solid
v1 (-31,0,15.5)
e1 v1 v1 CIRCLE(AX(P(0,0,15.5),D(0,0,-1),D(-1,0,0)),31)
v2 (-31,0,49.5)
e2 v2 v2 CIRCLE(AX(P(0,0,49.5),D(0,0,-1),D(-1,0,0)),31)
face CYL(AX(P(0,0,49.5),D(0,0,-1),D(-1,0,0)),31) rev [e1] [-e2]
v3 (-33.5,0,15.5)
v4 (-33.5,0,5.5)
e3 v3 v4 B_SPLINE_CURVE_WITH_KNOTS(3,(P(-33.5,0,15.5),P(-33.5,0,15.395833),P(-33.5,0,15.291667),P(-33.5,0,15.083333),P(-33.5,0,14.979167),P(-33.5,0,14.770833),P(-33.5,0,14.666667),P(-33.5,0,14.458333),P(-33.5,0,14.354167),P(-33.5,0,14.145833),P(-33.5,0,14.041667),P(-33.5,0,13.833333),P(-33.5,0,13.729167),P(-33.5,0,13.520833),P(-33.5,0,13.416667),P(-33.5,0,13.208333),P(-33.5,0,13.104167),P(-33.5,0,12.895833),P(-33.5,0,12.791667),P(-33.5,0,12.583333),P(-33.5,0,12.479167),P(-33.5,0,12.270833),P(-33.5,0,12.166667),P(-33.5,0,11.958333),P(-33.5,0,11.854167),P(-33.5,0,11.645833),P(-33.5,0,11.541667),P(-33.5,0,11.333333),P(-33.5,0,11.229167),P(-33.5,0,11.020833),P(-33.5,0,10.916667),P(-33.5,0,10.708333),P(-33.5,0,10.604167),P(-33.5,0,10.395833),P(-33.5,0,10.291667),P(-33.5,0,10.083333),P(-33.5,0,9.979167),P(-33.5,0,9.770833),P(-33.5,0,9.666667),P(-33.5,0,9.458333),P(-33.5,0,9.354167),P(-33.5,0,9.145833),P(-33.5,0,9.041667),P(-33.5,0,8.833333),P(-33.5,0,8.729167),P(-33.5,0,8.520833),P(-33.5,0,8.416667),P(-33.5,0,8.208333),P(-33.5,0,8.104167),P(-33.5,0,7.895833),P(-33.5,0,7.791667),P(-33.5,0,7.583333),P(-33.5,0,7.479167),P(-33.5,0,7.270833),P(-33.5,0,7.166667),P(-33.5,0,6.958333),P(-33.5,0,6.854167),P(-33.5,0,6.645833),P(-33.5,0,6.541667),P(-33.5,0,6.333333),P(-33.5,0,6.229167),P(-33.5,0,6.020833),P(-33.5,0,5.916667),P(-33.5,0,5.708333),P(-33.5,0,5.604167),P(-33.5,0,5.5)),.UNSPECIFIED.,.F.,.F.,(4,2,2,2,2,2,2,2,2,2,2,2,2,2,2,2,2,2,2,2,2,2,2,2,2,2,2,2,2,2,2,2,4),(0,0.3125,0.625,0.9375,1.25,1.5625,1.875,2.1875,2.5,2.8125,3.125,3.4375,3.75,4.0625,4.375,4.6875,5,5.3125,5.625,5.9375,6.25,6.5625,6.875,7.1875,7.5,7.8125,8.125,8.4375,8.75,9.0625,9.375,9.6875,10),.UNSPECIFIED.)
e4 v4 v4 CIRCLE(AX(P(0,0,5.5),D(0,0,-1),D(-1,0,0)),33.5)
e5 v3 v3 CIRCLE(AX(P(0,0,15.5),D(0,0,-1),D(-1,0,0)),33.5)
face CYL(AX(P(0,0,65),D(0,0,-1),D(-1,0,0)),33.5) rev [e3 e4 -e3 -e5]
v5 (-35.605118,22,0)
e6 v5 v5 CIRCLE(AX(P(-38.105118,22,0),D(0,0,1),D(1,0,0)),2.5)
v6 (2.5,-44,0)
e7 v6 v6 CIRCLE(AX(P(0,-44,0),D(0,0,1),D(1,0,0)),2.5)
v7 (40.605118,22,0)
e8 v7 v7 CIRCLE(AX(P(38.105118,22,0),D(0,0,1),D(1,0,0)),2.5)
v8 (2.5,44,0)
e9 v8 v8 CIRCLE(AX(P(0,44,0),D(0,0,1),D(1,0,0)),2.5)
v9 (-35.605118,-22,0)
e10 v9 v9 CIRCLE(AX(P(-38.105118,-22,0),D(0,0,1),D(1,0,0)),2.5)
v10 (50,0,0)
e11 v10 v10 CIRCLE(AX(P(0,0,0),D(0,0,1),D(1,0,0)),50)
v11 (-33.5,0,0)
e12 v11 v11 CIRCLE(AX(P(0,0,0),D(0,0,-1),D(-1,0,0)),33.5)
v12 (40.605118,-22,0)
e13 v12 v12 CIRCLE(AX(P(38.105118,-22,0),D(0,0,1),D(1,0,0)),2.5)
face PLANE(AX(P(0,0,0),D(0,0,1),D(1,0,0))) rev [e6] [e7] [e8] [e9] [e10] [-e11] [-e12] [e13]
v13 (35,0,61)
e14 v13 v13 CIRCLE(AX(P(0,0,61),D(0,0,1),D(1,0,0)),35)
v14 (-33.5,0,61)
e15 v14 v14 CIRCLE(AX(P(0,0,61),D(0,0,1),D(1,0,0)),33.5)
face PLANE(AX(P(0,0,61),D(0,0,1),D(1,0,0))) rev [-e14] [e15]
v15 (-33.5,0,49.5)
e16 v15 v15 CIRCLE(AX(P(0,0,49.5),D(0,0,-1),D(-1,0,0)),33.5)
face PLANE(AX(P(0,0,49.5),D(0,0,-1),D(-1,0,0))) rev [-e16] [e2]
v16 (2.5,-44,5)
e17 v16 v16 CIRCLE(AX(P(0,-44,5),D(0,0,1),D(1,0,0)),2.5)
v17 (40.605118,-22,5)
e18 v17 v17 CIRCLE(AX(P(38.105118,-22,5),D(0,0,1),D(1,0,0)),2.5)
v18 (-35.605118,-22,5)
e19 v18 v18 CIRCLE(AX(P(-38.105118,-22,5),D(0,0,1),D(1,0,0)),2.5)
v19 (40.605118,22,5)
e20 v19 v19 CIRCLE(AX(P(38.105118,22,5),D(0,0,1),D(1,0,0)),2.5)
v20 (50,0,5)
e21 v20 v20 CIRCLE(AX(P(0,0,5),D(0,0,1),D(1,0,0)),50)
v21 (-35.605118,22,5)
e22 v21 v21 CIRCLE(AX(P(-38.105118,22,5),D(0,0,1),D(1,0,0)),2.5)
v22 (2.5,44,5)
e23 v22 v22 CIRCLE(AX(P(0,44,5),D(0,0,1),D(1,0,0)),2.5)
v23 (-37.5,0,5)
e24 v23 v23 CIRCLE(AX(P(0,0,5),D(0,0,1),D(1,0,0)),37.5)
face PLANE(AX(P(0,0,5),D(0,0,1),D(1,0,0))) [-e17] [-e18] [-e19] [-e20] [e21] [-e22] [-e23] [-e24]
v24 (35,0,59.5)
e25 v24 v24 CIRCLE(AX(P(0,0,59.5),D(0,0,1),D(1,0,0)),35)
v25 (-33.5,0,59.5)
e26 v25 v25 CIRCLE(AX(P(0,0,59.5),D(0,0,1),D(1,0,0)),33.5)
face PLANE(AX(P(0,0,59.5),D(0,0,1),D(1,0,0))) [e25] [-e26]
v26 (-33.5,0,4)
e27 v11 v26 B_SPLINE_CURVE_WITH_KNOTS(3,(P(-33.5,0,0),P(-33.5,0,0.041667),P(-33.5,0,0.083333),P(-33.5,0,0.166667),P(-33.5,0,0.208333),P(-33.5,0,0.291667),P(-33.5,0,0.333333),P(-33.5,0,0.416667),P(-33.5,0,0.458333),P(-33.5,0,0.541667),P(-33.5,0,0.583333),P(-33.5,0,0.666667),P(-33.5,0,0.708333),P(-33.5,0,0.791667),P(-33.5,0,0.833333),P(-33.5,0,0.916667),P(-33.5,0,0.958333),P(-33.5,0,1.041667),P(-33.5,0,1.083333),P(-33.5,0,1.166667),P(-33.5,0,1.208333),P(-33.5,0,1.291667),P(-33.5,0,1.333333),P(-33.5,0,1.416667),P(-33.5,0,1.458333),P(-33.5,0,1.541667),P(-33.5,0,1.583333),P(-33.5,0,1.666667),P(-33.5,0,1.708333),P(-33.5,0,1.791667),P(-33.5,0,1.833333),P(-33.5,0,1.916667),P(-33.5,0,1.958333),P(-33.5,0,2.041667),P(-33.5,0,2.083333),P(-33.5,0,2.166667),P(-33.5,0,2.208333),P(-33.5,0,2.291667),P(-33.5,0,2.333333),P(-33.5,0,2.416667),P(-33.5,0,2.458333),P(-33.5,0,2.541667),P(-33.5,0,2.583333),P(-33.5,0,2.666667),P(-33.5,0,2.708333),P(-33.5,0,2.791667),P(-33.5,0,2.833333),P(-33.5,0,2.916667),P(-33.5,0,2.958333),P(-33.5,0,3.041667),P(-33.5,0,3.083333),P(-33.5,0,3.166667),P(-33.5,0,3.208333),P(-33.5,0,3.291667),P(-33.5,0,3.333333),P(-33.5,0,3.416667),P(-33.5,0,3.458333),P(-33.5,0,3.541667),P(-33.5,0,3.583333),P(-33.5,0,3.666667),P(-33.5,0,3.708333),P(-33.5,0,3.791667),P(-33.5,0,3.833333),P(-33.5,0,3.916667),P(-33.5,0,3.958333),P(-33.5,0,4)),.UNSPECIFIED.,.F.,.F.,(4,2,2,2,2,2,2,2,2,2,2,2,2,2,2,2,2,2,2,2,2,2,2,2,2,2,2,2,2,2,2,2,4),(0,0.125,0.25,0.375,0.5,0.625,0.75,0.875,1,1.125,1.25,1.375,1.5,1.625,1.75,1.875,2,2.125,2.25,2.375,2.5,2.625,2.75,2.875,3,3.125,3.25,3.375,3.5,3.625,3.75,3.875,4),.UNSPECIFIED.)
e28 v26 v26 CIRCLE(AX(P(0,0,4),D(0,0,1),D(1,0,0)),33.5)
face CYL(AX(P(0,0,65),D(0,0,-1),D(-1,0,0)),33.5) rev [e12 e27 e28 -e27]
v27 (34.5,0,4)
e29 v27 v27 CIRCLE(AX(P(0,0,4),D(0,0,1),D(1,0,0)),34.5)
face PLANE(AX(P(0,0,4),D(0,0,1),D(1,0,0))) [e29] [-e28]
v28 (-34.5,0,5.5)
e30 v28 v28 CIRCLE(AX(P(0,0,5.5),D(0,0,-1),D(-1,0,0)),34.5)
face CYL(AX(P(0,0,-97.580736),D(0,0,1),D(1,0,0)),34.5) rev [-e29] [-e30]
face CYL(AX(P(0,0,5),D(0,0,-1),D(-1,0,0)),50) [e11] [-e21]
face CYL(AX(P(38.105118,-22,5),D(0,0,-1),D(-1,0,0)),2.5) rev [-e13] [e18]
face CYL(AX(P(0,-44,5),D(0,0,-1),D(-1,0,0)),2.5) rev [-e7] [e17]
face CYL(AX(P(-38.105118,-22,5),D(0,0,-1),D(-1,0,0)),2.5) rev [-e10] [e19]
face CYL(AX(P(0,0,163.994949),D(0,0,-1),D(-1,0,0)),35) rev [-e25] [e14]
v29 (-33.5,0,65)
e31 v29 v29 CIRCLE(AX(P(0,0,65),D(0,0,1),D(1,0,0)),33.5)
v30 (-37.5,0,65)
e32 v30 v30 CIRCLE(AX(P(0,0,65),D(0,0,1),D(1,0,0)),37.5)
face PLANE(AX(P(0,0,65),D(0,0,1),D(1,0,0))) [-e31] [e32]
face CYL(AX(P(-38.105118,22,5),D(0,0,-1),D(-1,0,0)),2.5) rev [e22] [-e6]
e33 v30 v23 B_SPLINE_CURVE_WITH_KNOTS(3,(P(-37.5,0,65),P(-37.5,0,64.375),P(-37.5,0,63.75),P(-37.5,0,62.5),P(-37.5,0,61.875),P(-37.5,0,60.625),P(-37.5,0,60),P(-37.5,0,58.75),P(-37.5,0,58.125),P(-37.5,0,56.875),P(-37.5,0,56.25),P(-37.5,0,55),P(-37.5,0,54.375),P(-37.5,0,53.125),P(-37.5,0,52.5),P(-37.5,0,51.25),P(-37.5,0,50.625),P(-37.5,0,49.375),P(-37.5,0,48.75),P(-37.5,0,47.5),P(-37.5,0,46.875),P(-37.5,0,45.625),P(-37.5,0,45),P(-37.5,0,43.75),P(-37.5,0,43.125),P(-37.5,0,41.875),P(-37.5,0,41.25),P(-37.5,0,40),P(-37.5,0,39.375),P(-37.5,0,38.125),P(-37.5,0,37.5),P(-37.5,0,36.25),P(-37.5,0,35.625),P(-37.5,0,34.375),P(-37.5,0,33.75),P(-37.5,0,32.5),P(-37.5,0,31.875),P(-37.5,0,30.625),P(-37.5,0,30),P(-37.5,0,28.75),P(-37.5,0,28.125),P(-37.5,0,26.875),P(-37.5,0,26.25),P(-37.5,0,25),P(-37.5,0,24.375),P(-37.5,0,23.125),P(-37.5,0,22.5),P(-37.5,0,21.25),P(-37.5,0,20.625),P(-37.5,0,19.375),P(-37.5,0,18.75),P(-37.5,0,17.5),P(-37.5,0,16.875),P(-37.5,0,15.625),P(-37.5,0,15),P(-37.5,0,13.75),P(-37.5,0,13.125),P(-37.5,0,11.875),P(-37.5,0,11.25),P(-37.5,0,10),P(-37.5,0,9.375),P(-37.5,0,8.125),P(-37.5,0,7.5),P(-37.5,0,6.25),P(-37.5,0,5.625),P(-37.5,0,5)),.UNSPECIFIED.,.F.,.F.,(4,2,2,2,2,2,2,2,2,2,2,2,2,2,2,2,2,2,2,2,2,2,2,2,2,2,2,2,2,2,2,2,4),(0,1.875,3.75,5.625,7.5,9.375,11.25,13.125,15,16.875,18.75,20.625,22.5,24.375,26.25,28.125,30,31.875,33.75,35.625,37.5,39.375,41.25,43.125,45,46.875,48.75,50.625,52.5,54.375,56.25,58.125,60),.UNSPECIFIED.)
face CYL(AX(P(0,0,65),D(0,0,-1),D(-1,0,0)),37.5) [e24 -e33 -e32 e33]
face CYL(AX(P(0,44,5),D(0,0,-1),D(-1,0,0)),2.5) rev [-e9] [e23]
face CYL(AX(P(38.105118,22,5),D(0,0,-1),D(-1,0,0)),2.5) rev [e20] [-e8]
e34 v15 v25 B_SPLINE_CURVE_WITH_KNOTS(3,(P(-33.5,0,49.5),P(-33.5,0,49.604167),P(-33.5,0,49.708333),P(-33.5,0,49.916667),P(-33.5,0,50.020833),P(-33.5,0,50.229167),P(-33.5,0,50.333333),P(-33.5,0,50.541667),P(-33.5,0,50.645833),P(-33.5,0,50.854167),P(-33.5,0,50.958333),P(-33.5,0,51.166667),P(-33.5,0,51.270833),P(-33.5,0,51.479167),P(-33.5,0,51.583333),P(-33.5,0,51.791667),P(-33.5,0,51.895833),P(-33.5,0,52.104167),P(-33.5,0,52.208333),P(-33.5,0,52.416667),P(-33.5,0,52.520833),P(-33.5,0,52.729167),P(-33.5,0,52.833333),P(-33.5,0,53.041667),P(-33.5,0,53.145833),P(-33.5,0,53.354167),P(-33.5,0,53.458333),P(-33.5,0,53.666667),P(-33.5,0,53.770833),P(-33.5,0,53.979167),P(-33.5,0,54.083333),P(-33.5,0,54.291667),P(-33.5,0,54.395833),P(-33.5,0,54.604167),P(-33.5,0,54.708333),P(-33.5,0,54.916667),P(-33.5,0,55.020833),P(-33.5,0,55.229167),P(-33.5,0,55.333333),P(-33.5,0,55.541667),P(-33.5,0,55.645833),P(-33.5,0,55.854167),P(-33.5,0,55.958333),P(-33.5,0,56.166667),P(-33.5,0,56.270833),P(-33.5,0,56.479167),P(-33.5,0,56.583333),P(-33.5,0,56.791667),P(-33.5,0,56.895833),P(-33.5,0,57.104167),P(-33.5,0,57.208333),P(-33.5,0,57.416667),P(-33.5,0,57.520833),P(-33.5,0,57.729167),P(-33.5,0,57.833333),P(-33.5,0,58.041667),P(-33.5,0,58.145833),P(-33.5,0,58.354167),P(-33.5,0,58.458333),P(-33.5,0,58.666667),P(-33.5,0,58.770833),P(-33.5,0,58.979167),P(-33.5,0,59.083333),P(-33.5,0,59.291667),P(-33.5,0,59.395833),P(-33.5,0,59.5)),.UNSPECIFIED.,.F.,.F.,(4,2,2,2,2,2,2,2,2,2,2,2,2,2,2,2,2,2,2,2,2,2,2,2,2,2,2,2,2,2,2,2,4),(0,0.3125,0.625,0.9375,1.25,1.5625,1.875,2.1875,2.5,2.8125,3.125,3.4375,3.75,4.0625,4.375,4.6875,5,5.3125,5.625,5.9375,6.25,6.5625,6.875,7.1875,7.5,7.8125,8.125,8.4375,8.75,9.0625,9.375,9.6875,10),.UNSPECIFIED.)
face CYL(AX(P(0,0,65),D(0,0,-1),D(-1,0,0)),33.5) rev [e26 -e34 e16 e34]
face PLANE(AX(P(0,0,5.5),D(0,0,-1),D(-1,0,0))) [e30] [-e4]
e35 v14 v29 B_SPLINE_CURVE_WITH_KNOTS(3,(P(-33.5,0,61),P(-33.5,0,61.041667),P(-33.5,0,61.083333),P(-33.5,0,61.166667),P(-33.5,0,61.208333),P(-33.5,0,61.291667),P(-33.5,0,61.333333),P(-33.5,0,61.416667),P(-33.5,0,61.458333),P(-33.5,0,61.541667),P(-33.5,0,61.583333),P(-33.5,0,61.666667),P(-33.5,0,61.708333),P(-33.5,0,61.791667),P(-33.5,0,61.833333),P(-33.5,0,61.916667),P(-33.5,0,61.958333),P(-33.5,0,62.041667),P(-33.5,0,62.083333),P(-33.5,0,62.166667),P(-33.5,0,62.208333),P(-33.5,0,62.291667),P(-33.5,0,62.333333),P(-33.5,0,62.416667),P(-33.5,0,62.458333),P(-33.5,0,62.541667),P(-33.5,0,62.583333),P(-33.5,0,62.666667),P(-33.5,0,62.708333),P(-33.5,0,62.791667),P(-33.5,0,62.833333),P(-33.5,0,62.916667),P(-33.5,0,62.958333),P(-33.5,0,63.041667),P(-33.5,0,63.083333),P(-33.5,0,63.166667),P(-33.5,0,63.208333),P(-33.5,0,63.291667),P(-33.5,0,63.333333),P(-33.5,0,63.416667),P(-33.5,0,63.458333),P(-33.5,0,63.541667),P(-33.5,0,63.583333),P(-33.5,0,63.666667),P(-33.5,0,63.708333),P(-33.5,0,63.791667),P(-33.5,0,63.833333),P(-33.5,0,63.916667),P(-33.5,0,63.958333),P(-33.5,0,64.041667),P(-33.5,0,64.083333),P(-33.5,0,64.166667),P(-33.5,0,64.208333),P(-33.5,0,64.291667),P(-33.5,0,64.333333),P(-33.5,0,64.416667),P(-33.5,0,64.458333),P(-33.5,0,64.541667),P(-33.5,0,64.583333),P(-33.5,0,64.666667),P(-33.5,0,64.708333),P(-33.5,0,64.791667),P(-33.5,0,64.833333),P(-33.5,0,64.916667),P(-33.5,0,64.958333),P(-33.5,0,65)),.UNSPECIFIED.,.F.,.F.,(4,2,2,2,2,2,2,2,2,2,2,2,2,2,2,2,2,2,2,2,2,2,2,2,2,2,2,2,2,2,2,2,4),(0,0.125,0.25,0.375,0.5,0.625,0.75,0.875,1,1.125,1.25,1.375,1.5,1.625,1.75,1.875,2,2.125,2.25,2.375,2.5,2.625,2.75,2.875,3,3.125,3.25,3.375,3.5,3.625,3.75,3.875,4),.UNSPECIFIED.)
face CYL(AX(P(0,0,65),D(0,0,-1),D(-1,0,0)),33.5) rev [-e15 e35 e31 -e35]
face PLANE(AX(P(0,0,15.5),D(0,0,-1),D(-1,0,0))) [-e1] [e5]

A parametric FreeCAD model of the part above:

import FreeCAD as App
import Part
import Sketcher
from FreeCAD import Vector
Q = App.Units.Quantity

doc = App.newDocument("Part")
body = doc.addObject("PartDesign::Body", "Body")

# Sketch on XY plane
sketch1 = body.newObject("Sketcher::SketchObject", "Sketch")
sketch1.AttachmentSupport = (doc.getObject("XY_Plane"), [""])
sketch1.MapMode = "FlatFace"
sketch1.addGeometry([
    Part.Circle(Vector(0, 0, 0), Vector(0, 0, 1), 50),  # 0
    Part.Circle(Vector(-38.1, -22, 0), Vector(0, 0, 1), 2.5),  # 1
    Part.Circle(Vector(0, -44, 0), Vector(0, 0, 1), 2.5),  # 2
    Part.Circle(Vector(38.1, -22, 0), Vector(0, 0, 1), 2.5),  # 3
    Part.Circle(Vector(-38.1, 22, 0), Vector(0, 0, 1), 2.5),  # 4
    Part.Circle(Vector(38.1, 22, 0), Vector(0, 0, 1), 2.5),  # 5
    Part.Circle(Vector(0, 44, 0), Vector(0, 0, 1), 2.5),  # 6
], False)
sketch1.addConstraint([
    Sketcher.Constraint("Coincident", 0, 3, -1, 1),
    Sketcher.Constraint("Equal", 1, 2),
    Sketcher.Constraint("Equal", 2, 3),
    Sketcher.Constraint("Equal", 3, 4),
    Sketcher.Constraint("Equal", 4, 5),
    Sketcher.Constraint("Equal", 5, 6),
    Sketcher.Constraint("Symmetric", 3, 3, 4, 3, -1, 1),
    Sketcher.Constraint("Symmetric", 1, 3, 5, 3, -1, 1),
    Sketcher.Constraint("Symmetric", 2, 3, 6, 3, -1, 1),
    Sketcher.Constraint("Symmetric", 1, 3, 3, 3, -2),
    Sketcher.Constraint("PointOnObject", 2, 3, -2),
    Sketcher.Constraint("Diameter", 0, Q("100 mm")),
    Sketcher.Constraint("Diameter", 1, Q("5 mm")),
    Sketcher.Constraint("DistanceY", 1, 3, -1, 1, Q("22 mm")),
    Sketcher.Constraint("DistanceY", 2, 3, -1, 1, Q("44 mm")),
    Sketcher.Constraint("DistanceX", 1, 3, -1, 1, Q("38.105118 mm")),
])
pad1 = body.newObject("PartDesign::Pad", "Pad")
pad1.Profile = sketch1
pad1.Length = 5

# Sketch on XY plane
sketch2 = body.newObject("Sketcher::SketchObject", "Sketch001")
sketch2.AttachmentSupport = (doc.getObject("XY_Plane"), [""])
sketch2.MapMode = "FlatFace"
sketch2.AttachmentOffset = App.Placement(Vector(0, 0, 5), App.Rotation())
sketch2.addGeometry([
    Part.Circle(Vector(0, 0, 0), Vector(0, 0, 1), 38),
    Part.Circle(Vector(0, 0, 0), Vector(0, 0, 1), 34),
], False)
sketch2.addConstraint([
    Sketcher.Constraint("Coincident", 0, 3, -1, 1),
    Sketcher.Constraint("Coincident", 1, 3, -1, 1),
    Sketcher.Constraint("Diameter", 0, Q("75 mm")),
    Sketcher.Constraint("Diameter", 1, Q("67 mm")),
])
pad2 = body.newObject("PartDesign::Pad", "Pad001")
pad2.Profile = sketch2
pad2.Length = 60

# Sketch on XY plane
sketch3 = body.newObject("Sketcher::SketchObject", "Sketch002")
sketch3.AttachmentSupport = (doc.getObject("XY_Plane"), [""])
sketch3.MapMode = "FlatFace"
sketch3.addGeometry(Part.Circle(Vector(0, 0, 0), Vector(0, 0, 1), 34), False)
sketch3.addConstraint([
    Sketcher.Constraint("Coincident", 0, 3, -1, 1),
    Sketcher.Constraint("Diameter", 0, Q("67 mm")),
])
pocket1 = body.newObject("PartDesign::Pocket", "Pocket")
pocket1.Profile = sketch3
pocket1.Length = 50
pocket1.Reversed = True

# Sketch on XY plane
sketch4 = body.newObject("Sketcher::SketchObject", "Sketch003")
sketch4.AttachmentSupport = (doc.getObject("XY_Plane"), [""])
sketch4.MapMode = "FlatFace"
sketch4.AttachmentOffset = App.Placement(Vector(0, 0, 32.5), App.Rotation())
sketch4.addGeometry([
    Part.Circle(Vector(0, 0, 0), Vector(0, 0, 1), 35),
    Part.Circle(Vector(0, 0, 0), Vector(0, 0, 1), 31),
], False)
sketch4.addConstraint([
    Sketcher.Constraint("Coincident", 0, 3, -1, 1),
    Sketcher.Constraint("Coincident", 1, 3, -1, 1),
    Sketcher.Constraint("Diameter", 0, Q("70 mm")),
    Sketcher.Constraint("Diameter", 1, Q("62 mm")),
])
pad3 = body.newObject("PartDesign::Pad", "Pad002")
pad3.Profile = sketch4
pad3.Type = "TwoLengths"
pad3.Length = 17
pad3.Length2 = 17
pad3.Reversed = True

# Sketch on XY plane
sketch5 = body.newObject("Sketcher::SketchObject", "Sketch004")
sketch5.AttachmentSupport = (doc.getObject("XY_Plane"), [""])
sketch5.MapMode = "FlatFace"
sketch5.AttachmentOffset = App.Placement(Vector(0, 0, 5.5), App.Rotation())
sketch5.addGeometry(Part.Circle(Vector(0, 0, 0), Vector(0, 0, 1), 34), False)
sketch5.addConstraint([
    Sketcher.Constraint("Coincident", 0, 3, -1, 1),
    Sketcher.Constraint("Diameter", 0, Q("69 mm")),
])
pocket2 = body.newObject("PartDesign::Pocket", "Pocket001")
pocket2.Profile = sketch5
pocket2.Length = 1.5

# Sketch on XY plane
sketch6 = body.newObject("Sketcher::SketchObject", "Sketch005")
sketch6.AttachmentSupport = (doc.getObject("XY_Plane"), [""])
sketch6.MapMode = "FlatFace"
sketch6.AttachmentOffset = App.Placement(Vector(0, 0, 59.5), App.Rotation())
sketch6.addGeometry(Part.Circle(Vector(0, 0, 0), Vector(0, 0, 1), 35), False)
sketch6.addConstraint([
    Sketcher.Constraint("Coincident", 0, 3, -1, 1),
    Sketcher.Constraint("Diameter", 0, Q("70 mm")),
])
pocket3 = body.newObject("PartDesign::Pocket", "Pocket002")
pocket3.Profile = sketch6
pocket3.Length = 1.5
pocket3.Reversed = True

doc.recompute()
